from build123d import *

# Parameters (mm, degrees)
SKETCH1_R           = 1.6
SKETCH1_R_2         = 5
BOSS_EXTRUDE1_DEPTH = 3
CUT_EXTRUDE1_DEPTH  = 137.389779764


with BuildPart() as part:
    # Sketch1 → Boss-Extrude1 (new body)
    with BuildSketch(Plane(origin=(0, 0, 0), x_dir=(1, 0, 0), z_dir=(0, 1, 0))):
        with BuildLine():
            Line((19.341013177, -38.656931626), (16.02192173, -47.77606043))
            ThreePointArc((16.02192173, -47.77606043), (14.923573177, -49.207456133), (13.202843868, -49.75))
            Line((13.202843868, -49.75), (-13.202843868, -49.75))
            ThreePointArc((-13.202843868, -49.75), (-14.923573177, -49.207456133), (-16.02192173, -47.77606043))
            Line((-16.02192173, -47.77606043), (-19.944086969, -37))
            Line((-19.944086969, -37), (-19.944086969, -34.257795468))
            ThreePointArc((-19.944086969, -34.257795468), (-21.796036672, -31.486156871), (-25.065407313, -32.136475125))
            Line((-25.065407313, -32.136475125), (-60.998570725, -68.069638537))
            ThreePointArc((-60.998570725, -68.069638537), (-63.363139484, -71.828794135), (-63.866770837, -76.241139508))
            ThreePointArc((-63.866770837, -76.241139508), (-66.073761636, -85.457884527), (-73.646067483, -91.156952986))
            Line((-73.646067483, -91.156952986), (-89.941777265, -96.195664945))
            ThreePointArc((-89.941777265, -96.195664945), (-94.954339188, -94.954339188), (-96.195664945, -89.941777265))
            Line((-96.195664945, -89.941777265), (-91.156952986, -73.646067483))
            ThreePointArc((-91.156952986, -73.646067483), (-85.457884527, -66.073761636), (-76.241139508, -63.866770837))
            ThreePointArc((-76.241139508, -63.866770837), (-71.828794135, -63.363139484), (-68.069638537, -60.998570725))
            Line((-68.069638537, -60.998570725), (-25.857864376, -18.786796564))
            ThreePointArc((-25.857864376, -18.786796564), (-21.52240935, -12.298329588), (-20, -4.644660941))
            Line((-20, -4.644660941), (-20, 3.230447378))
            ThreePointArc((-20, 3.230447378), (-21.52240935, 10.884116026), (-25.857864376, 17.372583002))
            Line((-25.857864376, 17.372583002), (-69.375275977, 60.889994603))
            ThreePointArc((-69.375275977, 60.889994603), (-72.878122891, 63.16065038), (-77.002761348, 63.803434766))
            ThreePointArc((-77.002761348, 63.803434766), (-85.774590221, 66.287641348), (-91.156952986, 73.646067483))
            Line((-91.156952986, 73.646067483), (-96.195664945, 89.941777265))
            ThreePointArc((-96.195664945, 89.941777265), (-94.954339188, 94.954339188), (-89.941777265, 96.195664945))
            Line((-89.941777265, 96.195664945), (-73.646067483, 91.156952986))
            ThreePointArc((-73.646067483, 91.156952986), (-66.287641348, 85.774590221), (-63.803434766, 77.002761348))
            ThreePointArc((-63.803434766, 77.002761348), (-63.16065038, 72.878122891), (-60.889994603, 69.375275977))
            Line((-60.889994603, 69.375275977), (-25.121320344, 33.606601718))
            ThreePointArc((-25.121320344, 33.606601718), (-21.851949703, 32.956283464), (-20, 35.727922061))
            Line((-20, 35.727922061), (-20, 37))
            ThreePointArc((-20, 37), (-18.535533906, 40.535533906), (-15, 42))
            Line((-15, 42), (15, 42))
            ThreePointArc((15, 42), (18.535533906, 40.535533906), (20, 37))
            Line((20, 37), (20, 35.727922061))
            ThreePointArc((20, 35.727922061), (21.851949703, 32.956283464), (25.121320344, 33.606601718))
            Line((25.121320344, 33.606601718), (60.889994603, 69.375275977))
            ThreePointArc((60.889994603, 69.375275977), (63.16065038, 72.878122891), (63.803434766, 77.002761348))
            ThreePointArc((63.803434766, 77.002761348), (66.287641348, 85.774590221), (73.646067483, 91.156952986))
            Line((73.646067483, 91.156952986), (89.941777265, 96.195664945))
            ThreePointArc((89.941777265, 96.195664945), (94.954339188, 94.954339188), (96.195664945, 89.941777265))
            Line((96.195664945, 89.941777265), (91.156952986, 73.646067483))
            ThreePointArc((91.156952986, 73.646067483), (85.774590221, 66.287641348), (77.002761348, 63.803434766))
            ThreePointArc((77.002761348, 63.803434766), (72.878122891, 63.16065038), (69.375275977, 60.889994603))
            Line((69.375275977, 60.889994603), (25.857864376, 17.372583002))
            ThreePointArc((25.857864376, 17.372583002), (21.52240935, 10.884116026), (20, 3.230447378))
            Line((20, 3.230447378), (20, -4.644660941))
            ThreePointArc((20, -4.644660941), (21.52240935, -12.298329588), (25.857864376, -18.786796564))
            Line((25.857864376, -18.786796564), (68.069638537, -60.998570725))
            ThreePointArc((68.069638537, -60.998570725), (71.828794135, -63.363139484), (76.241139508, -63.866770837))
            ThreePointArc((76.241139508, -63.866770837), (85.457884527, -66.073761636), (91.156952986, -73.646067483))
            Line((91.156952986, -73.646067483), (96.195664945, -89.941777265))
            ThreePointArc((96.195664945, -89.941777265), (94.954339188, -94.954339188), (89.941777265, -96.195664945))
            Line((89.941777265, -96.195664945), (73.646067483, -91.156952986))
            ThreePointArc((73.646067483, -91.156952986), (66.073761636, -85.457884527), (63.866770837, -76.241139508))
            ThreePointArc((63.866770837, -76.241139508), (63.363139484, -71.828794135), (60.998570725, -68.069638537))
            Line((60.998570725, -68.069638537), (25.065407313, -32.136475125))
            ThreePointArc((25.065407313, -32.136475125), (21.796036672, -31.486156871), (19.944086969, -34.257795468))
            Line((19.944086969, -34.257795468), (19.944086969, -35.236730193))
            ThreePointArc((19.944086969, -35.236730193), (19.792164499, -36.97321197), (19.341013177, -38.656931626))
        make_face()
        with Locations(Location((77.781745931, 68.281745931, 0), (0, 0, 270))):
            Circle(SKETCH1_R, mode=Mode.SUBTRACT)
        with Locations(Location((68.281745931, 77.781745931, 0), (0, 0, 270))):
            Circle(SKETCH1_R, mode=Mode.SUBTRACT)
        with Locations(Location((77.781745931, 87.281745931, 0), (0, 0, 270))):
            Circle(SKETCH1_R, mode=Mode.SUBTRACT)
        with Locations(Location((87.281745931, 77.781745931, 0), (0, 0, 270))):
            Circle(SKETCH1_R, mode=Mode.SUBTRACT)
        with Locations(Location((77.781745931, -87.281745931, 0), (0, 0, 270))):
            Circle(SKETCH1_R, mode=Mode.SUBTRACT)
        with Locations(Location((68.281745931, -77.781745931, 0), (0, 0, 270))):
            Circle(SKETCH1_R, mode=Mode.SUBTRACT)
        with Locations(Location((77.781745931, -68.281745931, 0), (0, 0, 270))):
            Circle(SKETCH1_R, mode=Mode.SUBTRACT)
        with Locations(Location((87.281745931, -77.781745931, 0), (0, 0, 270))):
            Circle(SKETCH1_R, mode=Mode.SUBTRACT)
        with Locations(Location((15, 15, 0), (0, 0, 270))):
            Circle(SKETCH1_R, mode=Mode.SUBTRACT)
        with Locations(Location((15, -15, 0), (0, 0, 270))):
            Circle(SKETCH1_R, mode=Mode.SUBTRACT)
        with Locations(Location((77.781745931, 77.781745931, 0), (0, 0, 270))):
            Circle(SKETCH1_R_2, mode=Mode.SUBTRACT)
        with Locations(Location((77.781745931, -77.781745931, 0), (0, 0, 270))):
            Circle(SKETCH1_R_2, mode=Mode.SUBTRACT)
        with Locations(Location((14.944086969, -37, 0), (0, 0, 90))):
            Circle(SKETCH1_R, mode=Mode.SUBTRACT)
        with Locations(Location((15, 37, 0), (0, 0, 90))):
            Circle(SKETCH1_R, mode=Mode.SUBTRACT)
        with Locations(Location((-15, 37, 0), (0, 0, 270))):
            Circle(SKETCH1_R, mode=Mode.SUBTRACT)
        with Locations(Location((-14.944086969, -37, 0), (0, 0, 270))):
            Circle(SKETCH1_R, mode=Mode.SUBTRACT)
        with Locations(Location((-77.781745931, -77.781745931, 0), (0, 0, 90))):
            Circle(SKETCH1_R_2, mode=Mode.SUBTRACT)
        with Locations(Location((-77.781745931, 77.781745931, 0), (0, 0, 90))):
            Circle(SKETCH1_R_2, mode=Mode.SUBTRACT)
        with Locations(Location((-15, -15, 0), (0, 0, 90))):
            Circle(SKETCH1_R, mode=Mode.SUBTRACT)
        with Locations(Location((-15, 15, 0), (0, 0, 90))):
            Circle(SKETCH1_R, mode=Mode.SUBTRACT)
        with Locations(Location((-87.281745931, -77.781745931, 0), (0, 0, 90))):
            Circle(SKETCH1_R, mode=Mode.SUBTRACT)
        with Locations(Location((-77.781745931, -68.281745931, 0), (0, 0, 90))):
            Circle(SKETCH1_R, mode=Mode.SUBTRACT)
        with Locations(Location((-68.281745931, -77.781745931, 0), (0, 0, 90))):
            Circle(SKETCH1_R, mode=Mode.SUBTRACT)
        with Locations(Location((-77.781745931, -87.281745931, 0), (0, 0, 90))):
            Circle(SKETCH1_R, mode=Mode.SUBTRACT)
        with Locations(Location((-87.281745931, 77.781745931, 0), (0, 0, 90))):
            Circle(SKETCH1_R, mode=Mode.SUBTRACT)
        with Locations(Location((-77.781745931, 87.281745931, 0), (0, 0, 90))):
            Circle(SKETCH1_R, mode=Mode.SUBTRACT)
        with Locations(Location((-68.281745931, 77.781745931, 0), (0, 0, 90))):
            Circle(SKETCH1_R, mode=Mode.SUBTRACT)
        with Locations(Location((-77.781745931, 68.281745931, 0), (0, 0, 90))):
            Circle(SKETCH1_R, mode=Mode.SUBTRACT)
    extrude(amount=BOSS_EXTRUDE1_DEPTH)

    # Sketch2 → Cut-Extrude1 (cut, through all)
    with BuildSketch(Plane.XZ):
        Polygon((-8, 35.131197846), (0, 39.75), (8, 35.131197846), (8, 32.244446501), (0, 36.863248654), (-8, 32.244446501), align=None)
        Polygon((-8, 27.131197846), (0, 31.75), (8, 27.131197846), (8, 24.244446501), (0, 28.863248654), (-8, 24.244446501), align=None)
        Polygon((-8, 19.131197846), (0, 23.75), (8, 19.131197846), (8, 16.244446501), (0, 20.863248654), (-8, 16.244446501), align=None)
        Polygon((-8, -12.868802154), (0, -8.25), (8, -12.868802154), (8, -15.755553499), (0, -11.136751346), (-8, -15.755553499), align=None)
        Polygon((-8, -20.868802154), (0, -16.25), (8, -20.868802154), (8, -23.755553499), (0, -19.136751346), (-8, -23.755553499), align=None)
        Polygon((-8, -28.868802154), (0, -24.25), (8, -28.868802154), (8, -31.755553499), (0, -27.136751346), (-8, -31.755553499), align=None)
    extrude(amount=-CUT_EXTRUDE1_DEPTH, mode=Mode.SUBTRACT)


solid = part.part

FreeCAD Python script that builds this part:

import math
import FreeCAD as App
import Part
import Sketcher
from FreeCAD import Vector
Q = App.Units.Quantity


def add_polygon(sketch, points):
    """Adds a closed chain of lines whose ends are joined by coincident constraints."""
    first, n = sketch.GeometryCount, len(points)
    for a, b in zip(points, points[1:] + points[:1]):
        sketch.addGeometry(Part.LineSegment(App.Vector(*a, 0), App.Vector(*b, 0)), False)
    for i in range(n):
        sketch.addConstraint(Sketcher.Constraint("Coincident", first + i, 2, first + (i + 1) % n, 1))

doc = App.newDocument("Part")
body = doc.addObject("PartDesign::Body", "Body")

sketch1 = body.newObject("Sketcher::SketchObject", "Sketch")
sketch1.AttachmentSupport = (doc.getObject("XZ_Plane"), [""])
sketch1.MapMode = "FlatFace"
sketch1.addGeometry(Part.LineSegment(Vector(16.021922, 47.77606, 0), Vector(19.341013, 38.656932, 0)), False)
sketch1.addGeometry(Part.ArcOfCircle(Part.Circle(Vector(9.944087, 35.23673, 0), Vector(0, 0, 1), 10), math.radians(0), math.radians(20)), False)
sketch1.addGeometry(Part.LineSegment(Vector(19.944087, 35.23673, 0), Vector(19.944087, 34.257795, 0)), False)
sketch1.addGeometry(Part.ArcOfCircle(Part.Circle(Vector(22.944087, 34.257795, 0), Vector(0, 0, 1), 3), math.radians(-180), math.radians(-45)), False)
sketch1.addGeometry(Part.LineSegment(Vector(25.065407, 32.136475, 0), Vector(60.998571, 68.069639, 0)), False)
sketch1.addGeometry(Part.ArcOfCircle(Part.Circle(Vector(53.927503, 75.140706, 0), Vector(0, 0, 1), 10), math.radians(-45), math.radians(6.317813)), False)
sketch1.addGeometry(Part.ArcOfCircle(Part.Circle(Vector(77.781746, 77.781746, 0), Vector(0, 0, 1), 14), math.radians(107.181861), math.radians(186.317813)), False)
sketch1.addGeometry(Part.LineSegment(Vector(73.646067, 91.156953, 0), Vector(89.941777, 96.195665, 0)), False)
sketch1.addGeometry(Part.ArcOfCircle(Part.Circle(Vector(91.418805, 91.418805, 0), Vector(0, 0, 1), 5), math.radians(-17.181861), math.radians(107.181861)), False)
sketch1.addGeometry(Part.LineSegment(Vector(96.195665, 89.941777, 0), Vector(91.156953, 73.646067, 0)), False)
sketch1.addGeometry(Part.ArcOfCircle(Part.Circle(Vector(77.781746, 77.781746, 0), Vector(0, 0, 1), 14), math.radians(-96.317813), math.radians(-17.181861)), False)
sketch1.addGeometry(Part.ArcOfCircle(Part.Circle(Vector(75.140706, 53.927503, 0), Vector(0, 0, 1), 10), math.radians(83.682187), math.radians(135)), False)
sketch1.addGeometry(Part.LineSegment(Vector(68.069639, 60.998571, 0), Vector(25.857864, 18.786797, 0)), False)
sketch1.addGeometry(Part.ArcOfCircle(Part.Circle(Vector(40, 4.644661, 0), Vector(0, 0, 1), 20), math.radians(135), math.radians(180)), False)
sketch1.addGeometry(Part.LineSegment(Vector(20, 4.644661, 0), Vector(20, -3.230447, 0)), False)
sketch1.addGeometry(Part.ArcOfCircle(Part.Circle(Vector(40, -3.230447, 0), Vector(0, 0, 1), 20), math.radians(180), math.radians(225)), False)
sketch1.addGeometry(Part.LineSegment(Vector(25.857864, -17.372583, 0), Vector(69.375276, -60.889995, 0)), False)
sketch1.addGeometry(Part.ArcOfCircle(Part.Circle(Vector(76.446344, -53.818927, 0), Vector(0, 0, 1), 10), math.radians(-135), math.radians(-86.810315)), False)
sketch1.addGeometry(Part.ArcOfCircle(Part.Circle(Vector(77.781746, -77.781746, 0), Vector(0, 0, 1), 14), math.radians(17.181861), math.radians(93.189685)), False)
sketch1.addGeometry(Part.LineSegment(Vector(91.156953, -73.646067, 0), Vector(96.195665, -89.941777, 0)), False)
sketch1.addGeometry(Part.ArcOfCircle(Part.Circle(Vector(91.418805, -91.418805, 0), Vector(0, 0, 1), 5), math.radians(-107.181861), math.radians(17.181861)), False)
sketch1.addGeometry(Part.LineSegment(Vector(89.941777, -96.195665, 0), Vector(73.646067, -91.156953, 0)), False)
sketch1.addGeometry(Part.ArcOfCircle(Part.Circle(Vector(77.781746, -77.781746, 0), Vector(0, 0, 1), 14), math.radians(176.810315), math.radians(252.818139)), False)
sketch1.addGeometry(Part.ArcOfCircle(Part.Circle(Vector(53.818927, -76.446344, 0), Vector(0, 0, 1), 10), math.radians(-3.189685), math.radians(45)), False)
sketch1.addGeometry(Part.LineSegment(Vector(60.889995, -69.375276, 0), Vector(25.12132, -33.606602, 0)), False)
sketch1.addGeometry(Part.ArcOfCircle(Part.Circle(Vector(23, -35.727922, 0), Vector(0, 0, 1), 3), math.radians(45), math.radians(180)), False)
sketch1.addGeometry(Part.LineSegment(Vector(20, -35.727922, 0), Vector(20, -37, 0)), False)
sketch1.addGeometry(Part.ArcOfCircle(Part.Circle(Vector(15, -37, 0), Vector(0, 0, 1), 5), math.radians(-90), math.radians(0)), False)
sketch1.addGeometry(Part.LineSegment(Vector(15, -42, 0), Vector(-15, -42, 0)), False)
sketch1.addGeometry(Part.ArcOfCircle(Part.Circle(Vector(-15, -37, 0), Vector(0, 0, 1), 5), math.radians(180), math.radians(270)), False)
sketch1.addGeometry(Part.LineSegment(Vector(-20, -37, 0), Vector(-20, -35.727922, 0)), False)
sketch1.addGeometry(Part.ArcOfCircle(Part.Circle(Vector(-23, -35.727922, 0), Vector(0, 0, 1), 3), math.radians(0), math.radians(135)), False)
sketch1.addGeometry(Part.LineSegment(Vector(-25.12132, -33.606602, 0), Vector(-60.889995, -69.375276, 0)), False)
sketch1.addGeometry(Part.ArcOfCircle(Part.Circle(Vector(-53.818927, -76.446344, 0), Vector(0, 0, 1), 10), math.radians(135), math.radians(183.189685)), False)
sketch1.addGeometry(Part.ArcOfCircle(Part.Circle(Vector(-77.781746, -77.781746, 0), Vector(0, 0, 1), 14), math.radians(-72.818139), math.radians(3.189685)), False)
sketch1.addGeometry(Part.LineSegment(Vector(-73.646067, -91.156953, 0), Vector(-89.941777, -96.195665, 0)), False)
sketch1.addGeometry(Part.ArcOfCircle(Part.Circle(Vector(-91.418805, -91.418805, 0), Vector(0, 0, 1), 5), math.radians(162.818139), math.radians(287.181861)), False)
sketch1.addGeometry(Part.LineSegment(Vector(-96.195665, -89.941777, 0), Vector(-91.156953, -73.646067, 0)), False)
sketch1.addGeometry(Part.ArcOfCircle(Part.Circle(Vector(-77.781746, -77.781746, 0), Vector(0, 0, 1), 14), math.radians(86.810315), math.radians(162.818139)), False)
sketch1.addGeometry(Part.ArcOfCircle(Part.Circle(Vector(-76.446344, -53.818927, 0), Vector(0, 0, 1), 10), math.radians(-93.189685), math.radians(-45)), False)
sketch1.addGeometry(Part.LineSegment(Vector(-69.375276, -60.889995, 0), Vector(-25.857864, -17.372583, 0)), False)
sketch1.addGeometry(Part.ArcOfCircle(Part.Circle(Vector(-40, -3.230447, 0), Vector(0, 0, 1), 20), math.radians(-45), math.radians(0)), False)
sketch1.addGeometry(Part.LineSegment(Vector(-20, -3.230447, 0), Vector(-20, 4.644661, 0)), False)
sketch1.addGeometry(Part.ArcOfCircle(Part.Circle(Vector(-40, 4.644661, 0), Vector(0, 0, 1), 20), math.radians(0), math.radians(45)), False)
sketch1.addGeometry(Part.LineSegment(Vector(-25.857864, 18.786797, 0), Vector(-68.069639, 60.998571, 0)), False)
sketch1.addGeometry(Part.ArcOfCircle(Part.Circle(Vector(-75.140706, 53.927503, 0), Vector(0, 0, 1), 10), math.radians(45), math.radians(96.317813)), False)
sketch1.addGeometry(Part.ArcOfCircle(Part.Circle(Vector(-77.781746, 77.781746, 0), Vector(0, 0, 1), 14), math.radians(-162.818139), math.radians(-83.682187)), False)
sketch1.addGeometry(Part.LineSegment(Vector(-91.156953, 73.646067, 0), Vector(-96.195665, 89.941777, 0)), False)
sketch1.addGeometry(Part.ArcOfCircle(Part.Circle(Vector(-91.418805, 91.418805, 0), Vector(0, 0, 1), 5), math.radians(72.818139), math.radians(197.181861)), False)
sketch1.addGeometry(Part.LineSegment(Vector(-89.941777, 96.195665, 0), Vector(-73.646067, 91.156953, 0)), False)
sketch1.addGeometry(Part.ArcOfCircle(Part.Circle(Vector(-77.781746, 77.781746, 0), Vector(0, 0, 1), 14), math.radians(-6.317813), math.radians(72.818139)), False)
sketch1.addGeometry(Part.ArcOfCircle(Part.Circle(Vector(-53.927503, 75.140706, 0), Vector(0, 0, 1), 10), math.radians(173.682187), math.radians(225)), False)
sketch1.addGeometry(Part.LineSegment(Vector(-60.998571, 68.069639, 0), Vector(-25.065407, 32.136475, 0)), False)
sketch1.addGeometry(Part.ArcOfCircle(Part.Circle(Vector(-22.944087, 34.257795, 0), Vector(0, 0, 1), 3), math.radians(-135), math.radians(0)), False)
sketch1.addGeometry(Part.LineSegment(Vector(-19.944087, 34.257795, 0), Vector(-19.944087, 37, 0)), False)
sketch1.addGeometry(Part.LineSegment(Vector(-19.944087, 37, 0), Vector(-16.021922, 47.77606, 0)), False)
sketch1.addGeometry(Part.ArcOfCircle(Part.Circle(Vector(-13.202844, 46.75, 0), Vector(0, 0, 1), 3), math.radians(90), math.radians(160)), False)
sketch1.addGeometry(Part.LineSegment(Vector(-13.202844, 49.75, 0), Vector(13.202844, 49.75, 0)), False)
sketch1.addGeometry(Part.ArcOfCircle(Part.Circle(Vector(13.202844, 46.75, 0), Vector(0, 0, 1), 3), math.radians(20), math.radians(90)), False)
sketch1.addGeometry(Part.Circle(Vector(77.781746, 87.281746, 0), Vector(0, 0, 1), 1.6), False)
sketch1.addGeometry(Part.Circle(Vector(87.281746, 77.781746, 0), Vector(0, 0, 1), 1.6), False)
sketch1.addGeometry(Part.Circle(Vector(77.781746, 77.781746, 0), Vector(0, 0, 1), 5), False)
sketch1.addGeometry(Part.Circle(Vector(68.281746, 77.781746, 0), Vector(0, 0, 1), 1.6), False)
sketch1.addGeometry(Part.Circle(Vector(77.781746, 68.281746, 0), Vector(0, 0, 1), 1.6), False)
sketch1.addGeometry(Part.Circle(Vector(14.944087, 37, 0), Vector(0, 0, 1), 1.6), False)
sketch1.addGeometry(Part.Circle(Vector(15, 15, 0), Vector(0, 0, 1), 1.6), False)
sketch1.addGeometry(Part.Circle(Vector(-68.281746, 77.781746, 0), Vector(0, 0, 1), 1.6), False)
sketch1.addGeometry(Part.Circle(Vector(-77.781746, 87.281746, 0), Vector(0, 0, 1), 1.6), False)
sketch1.addGeometry(Part.Circle(Vector(-77.781746, 77.781746, 0), Vector(0, 0, 1), 5), False)
sketch1.addGeometry(Part.Circle(Vector(-87.281746, 77.781746, 0), Vector(0, 0, 1), 1.6), False)
sketch1.addGeometry(Part.Circle(Vector(-77.781746, 68.281746, 0), Vector(0, 0, 1), 1.6), False)
sketch1.addGeometry(Part.Circle(Vector(-14.944087, 37, 0), Vector(0, 0, 1), 1.6), False)
sketch1.addGeometry(Part.Circle(Vector(-15, 15, 0), Vector(0, 0, 1), 1.6), False)
sketch1.addGeometry(Part.Circle(Vector(15, -15, 0), Vector(0, 0, 1), 1.6), False)
sketch1.addGeometry(Part.Circle(Vector(15, -37, 0), Vector(0, 0, 1), 1.6), False)
sketch1.addGeometry(Part.Circle(Vector(77.781746, -68.281746, 0), Vector(0, 0, 1), 1.6), False)
sketch1.addGeometry(Part.Circle(Vector(87.281746, -77.781746, 0), Vector(0, 0, 1), 1.6), False)
sketch1.addGeometry(Part.Circle(Vector(77.781746, -77.781746, 0), Vector(0, 0, 1), 5), False)
sketch1.addGeometry(Part.Circle(Vector(77.781746, -87.281746, 0), Vector(0, 0, 1), 1.6), False)
sketch1.addGeometry(Part.Circle(Vector(68.281746, -77.781746, 0), Vector(0, 0, 1), 1.6), False)
sketch1.addGeometry(Part.Circle(Vector(-15, -15, 0), Vector(0, 0, 1), 1.6), False)
sketch1.addGeometry(Part.Circle(Vector(-15, -37, 0), Vector(0, 0, 1), 1.6), False)
sketch1.addGeometry(Part.Circle(Vector(-77.781746, -68.281746, 0), Vector(0, 0, 1), 1.6), False)
sketch1.addGeometry(Part.Circle(Vector(-68.281746, -77.781746, 0), Vector(0, 0, 1), 1.6), False)
sketch1.addGeometry(Part.Circle(Vector(-77.781746, -77.781746, 0), Vector(0, 0, 1), 5), False)
sketch1.addGeometry(Part.Circle(Vector(-87.281746, -77.781746, 0), Vector(0, 0, 1), 1.6), False)
sketch1.addGeometry(Part.Circle(Vector(-77.781746, -87.281746, 0), Vector(0, 0, 1), 1.6), False)
sketch1.addConstraint(Sketcher.Constraint("Tangent", 0, 2, 1, 2))
sketch1.addConstraint(Sketcher.Constraint("Tangent", 1, 1, 2, 1))
sketch1.addConstraint(Sketcher.Constraint("Tangent", 2, 2, 3, 1))
sketch1.addConstraint(Sketcher.Constraint("Tangent", 3, 2, 4, 1))
sketch1.addConstraint(Sketcher.Constraint("Tangent", 4, 2, 5, 1))
sketch1.addConstraint(Sketcher.Constraint("Tangent", 5, 2, 6, 2))
sketch1.addConstraint(Sketcher.Constraint("Tangent", 6, 1, 7, 1))
sketch1.addConstraint(Sketcher.Constraint("Tangent", 7, 2, 8, 2))
sketch1.addConstraint(Sketcher.Constraint("Tangent", 8, 1, 9, 1))
sketch1.addConstraint(Sketcher.Constraint("Tangent", 9, 2, 10, 2))
sketch1.addConstraint(Sketcher.Constraint("Tangent", 10, 1, 11, 1))
sketch1.addConstraint(Sketcher.Constraint("Tangent", 11, 2, 12, 1))
sketch1.addConstraint(Sketcher.Constraint("Tangent", 12, 2, 13, 1))
sketch1.addConstraint(Sketcher.Constraint("Tangent", 13, 2, 14, 1))
sketch1.addConstraint(Sketcher.Constraint("Tangent", 14, 2, 15, 1))
sketch1.addConstraint(Sketcher.Constraint("Tangent", 15, 2, 16, 1))
sketch1.addConstraint(Sketcher.Constraint("Tangent", 16, 2, 17, 1))
sketch1.addConstraint(Sketcher.Constraint("Tangent", 17, 2, 18, 2))
sketch1.addConstraint(Sketcher.Constraint("Tangent", 18, 1, 19, 1))
sketch1.addConstraint(Sketcher.Constraint("Tangent", 19, 2, 20, 2))
sketch1.addConstraint(Sketcher.Constraint("Tangent", 20, 1, 21, 1))
sketch1.addConstraint(Sketcher.Constraint("Tangent", 21, 2, 22, 2))
sketch1.addConstraint(Sketcher.Constraint("Tangent", 22, 1, 23, 1))
sketch1.addConstraint(Sketcher.Constraint("Tangent", 23, 2, 24, 1))
sketch1.addConstraint(Sketcher.Constraint("Tangent", 24, 2, 25, 1))
sketch1.addConstraint(Sketcher.Constraint("Tangent", 25, 2, 26, 1))
sketch1.addConstraint(Sketcher.Constraint("Tangent", 26, 2, 27, 2))
sketch1.addConstraint(Sketcher.Constraint("Tangent", 27, 1, 28, 1))
sketch1.addConstraint(Sketcher.Constraint("Tangent", 28, 2, 29, 2))
sketch1.addConstraint(Sketcher.Constraint("Tangent", 29, 1, 30, 1))
sketch1.addConstraint(Sketcher.Constraint("Tangent", 30, 2, 31, 1))
sketch1.addConstraint(Sketcher.Constraint("Tangent", 31, 2, 32, 1))
sketch1.addConstraint(Sketcher.Constraint("Tangent", 32, 2, 33, 1))
sketch1.addConstraint(Sketcher.Constraint("Tangent", 33, 2, 34, 2))
sketch1.addConstraint(Sketcher.Constraint("Tangent", 34, 1, 35, 1))
sketch1.addConstraint(Sketcher.Constraint("Tangent", 35, 2, 36, 2))
sketch1.addConstraint(Sketcher.Constraint("Tangent", 36, 1, 37, 1))
sketch1.addConstraint(Sketcher.Constraint("Tangent", 37, 2, 38, 2))
sketch1.addConstraint(Sketcher.Constraint("Tangent", 38, 1, 39, 1))
sketch1.addConstraint(Sketcher.Constraint("Tangent", 39, 2, 40, 1))
sketch1.addConstraint(Sketcher.Constraint("Tangent", 40, 2, 41, 1))
sketch1.addConstraint(Sketcher.Constraint("Tangent", 41, 2, 42, 1))
sketch1.addConstraint(Sketcher.Constraint("Tangent", 42, 2, 43, 1))
sketch1.addConstraint(Sketcher.Constraint("Tangent", 43, 2, 44, 1))
sketch1.addConstraint(Sketcher.Constraint("Tangent", 44, 2, 45, 1))
sketch1.addConstraint(Sketcher.Constraint("Tangent", 45, 2, 46, 2))
sketch1.addConstraint(Sketcher.Constraint("Tangent", 46, 1, 47, 1))
sketch1.addConstraint(Sketcher.Constraint("Tangent", 47, 2, 48, 2))
sketch1.addConstraint(Sketcher.Constraint("Tangent", 48, 1, 49, 1))
sketch1.addConstraint(Sketcher.Constraint("Tangent", 49, 2, 50, 2))
sketch1.addConstraint(Sketcher.Constraint("Tangent", 50, 1, 51, 1))
sketch1.addConstraint(Sketcher.Constraint("Tangent", 51, 2, 52, 1))
sketch1.addConstraint(Sketcher.Constraint("Tangent", 52, 2, 53, 1))
sketch1.addConstraint(Sketcher.Constraint("Tangent", 53, 2, 54, 1))
sketch1.addConstraint(Sketcher.Constraint("Coincident", 54, 2, 55, 1))
sketch1.addConstraint(Sketcher.Constraint("Tangent", 55, 2, 56, 2))
sketch1.addConstraint(Sketcher.Constraint("Tangent", 56, 1, 57, 1))
sketch1.addConstraint(Sketcher.Constraint("Tangent", 57, 2, 58, 2))
sketch1.addConstraint(Sketcher.Constraint("Tangent", 58, 1, 0, 1))
sketch1.addConstraint(Sketcher.Constraint("Vertical", 2))
sketch1.addConstraint(Sketcher.Constraint("Vertical", 14))
sketch1.addConstraint(Sketcher.Constraint("Vertical", 26))
sketch1.addConstraint(Sketcher.Constraint("Horizontal", 28))
sketch1.addConstraint(Sketcher.Constraint("Vertical", 30))
sketch1.addConstraint(Sketcher.Constraint("Vertical", 42))
sketch1.addConstraint(Sketcher.Constraint("Vertical", 54))
sketch1.addConstraint(Sketcher.Constraint("Horizontal", 57))
sketch1.addConstraint(Sketcher.Constraint("Coincident", 10, 3, 6, 3))
sketch1.addConstraint(Sketcher.Constraint("Coincident", 22, 3, 18, 3))
sketch1.addConstraint(Sketcher.Constraint("Coincident", 38, 3, 34, 3))
sketch1.addConstraint(Sketcher.Constraint("Coincident", 50, 3, 46, 3))
sketch1.addConstraint(Sketcher.Constraint("Coincident", 61, 3, 6, 3))
sketch1.addConstraint(Sketcher.Constraint("Coincident", 68, 3, 46, 3))
sketch1.addConstraint(Sketcher.Constraint("Coincident", 74, 3, 27, 3))
sketch1.addConstraint(Sketcher.Constraint("Coincident", 77, 3, 18, 3))
sketch1.addConstraint(Sketcher.Constraint("Coincident", 81, 3, 29, 3))
sketch1.addConstraint(Sketcher.Constraint("Coincident", 84, 3, 34, 3))
sketch1.addConstraint(Sketcher.Constraint("Equal", 1, 5))
sketch1.addConstraint(Sketcher.Constraint("Equal", 6, 10))
sketch1.addConstraint(Sketcher.Constraint("Equal", 5, 11))
sketch1.addConstraint(Sketcher.Constraint("Equal", 13, 15))
sketch1.addConstraint(Sketcher.Constraint("Equal", 11, 17))
sketch1.addConstraint(Sketcher.Constraint("Equal", 10, 18))
sketch1.addConstraint(Sketcher.Constraint("Equal", 8, 20))
sketch1.addConstraint(Sketcher.Constraint("Equal", 18, 22))
sketch1.addConstraint(Sketcher.Constraint("Equal", 17, 23))
sketch1.addConstraint(Sketcher.Constraint("Equal", 3, 25))
sketch1.addConstraint(Sketcher.Constraint("Equal", 20, 27))
sketch1.addConstraint(Sketcher.Constraint("Equal", 27, 29))
sketch1.addConstraint(Sketcher.Constraint("Equal", 25, 31))
sketch1.addConstraint(Sketcher.Constraint("Equal", 23, 33))
sketch1.addConstraint(Sketcher.Constraint("Equal", 22, 34))
sketch1.addConstraint(Sketcher.Constraint("Equal", 29, 36))
sketch1.addConstraint(Sketcher.Constraint("Equal", 34, 38))
sketch1.addConstraint(Sketcher.Constraint("Equal", 33, 39))
sketch1.addConstraint(Sketcher.Constraint("Equal", 15, 41))
sketch1.addConstraint(Sketcher.Constraint("Equal", 41, 43))
sketch1.addConstraint(Sketcher.Constraint("Equal", 39, 45))
sketch1.addConstraint(Sketcher.Constraint("Equal", 38, 46))
sketch1.addConstraint(Sketcher.Constraint("Equal", 36, 48))
sketch1.addConstraint(Sketcher.Constraint("Equal", 46, 50))
sketch1.addConstraint(Sketcher.Constraint("Equal", 45, 51))
sketch1.addConstraint(Sketcher.Constraint("Equal", 31, 53))
sketch1.addConstraint(Sketcher.Constraint("Equal", 53, 56))
sketch1.addConstraint(Sketcher.Constraint("Equal", 56, 58))
sketch1.addConstraint(Sketcher.Constraint("Equal", 59, 60))
sketch1.addConstraint(Sketcher.Constraint("Equal", 48, 61))
sketch1.addConstraint(Sketcher.Constraint("Equal", 60, 62))
sketch1.addConstraint(Sketcher.Constraint("Equal", 62, 63))
sketch1.addConstraint(Sketcher.Constraint("Equal", 63, 64))
sketch1.addConstraint(Sketcher.Constraint("Equal", 64, 65))
sketch1.addConstraint(Sketcher.Constraint("Equal", 65, 66))
sketch1.addConstraint(Sketcher.Constraint("Equal", 66, 67))
sketch1.addConstraint(Sketcher.Constraint("Equal", 61, 68))
sketch1.addConstraint(Sketcher.Constraint("Equal", 67, 69))
sketch1.addConstraint(Sketcher.Constraint("Equal", 69, 70))
sketch1.addConstraint(Sketcher.Constraint("Equal", 70, 71))
sketch1.addConstraint(Sketcher.Constraint("Equal", 71, 72))
sketch1.addConstraint(Sketcher.Constraint("Equal", 72, 73))
sketch1.addConstraint(Sketcher.Constraint("Equal", 73, 74))
sketch1.addConstraint(Sketcher.Constraint("Equal", 74, 75))
sketch1.addConstraint(Sketcher.Constraint("Equal", 75, 76))
sketch1.addConstraint(Sketcher.Constraint("Equal", 68, 77))
sketch1.addConstraint(Sketcher.Constraint("Equal", 76, 78))
sketch1.addConstraint(Sketcher.Constraint("Equal", 78, 79))
sketch1.addConstraint(Sketcher.Constraint("Equal", 79, 80))
sketch1.addConstraint(Sketcher.Constraint("Equal", 80, 81))
sketch1.addConstraint(Sketcher.Constraint("Equal", 81, 82))
sketch1.addConstraint(Sketcher.Constraint("Equal", 82, 83))
sketch1.addConstraint(Sketcher.Constraint("Equal", 77, 84))
sketch1.addConstraint(Sketcher.Constraint("Equal", 83, 85))
sketch1.addConstraint(Sketcher.Constraint("Equal", 85, 86))
sketch1.addConstraint(Sketcher.Constraint("Symmetric", 6, 3, 34, 3, -1, 1))
sketch1.addConstraint(Sketcher.Constraint("Symmetric", 8, 3, 36, 3, -1, 1))
sketch1.addConstraint(Sketcher.Constraint("Symmetric", 18, 3, 46, 3, -1, 1))
sketch1.addConstraint(Sketcher.Constraint("Symmetric", 20, 3, 48, 3, -1, 1))
sketch1.addConstraint(Sketcher.Constraint("Symmetric", 72, 3, 73, 3, -1, 1))
sketch1.addConstraint(Sketcher.Constraint("Symmetric", 70, 3, 75, 3, -1, 1))
sketch1.addConstraint(Sketcher.Constraint("Symmetric", 69, 3, 76, 3, -1, 1))
sketch1.addConstraint(Sketcher.Constraint("Symmetric", 67, 3, 78, 3, -1, 1))
sketch1.addConstraint(Sketcher.Constraint("Symmetric", 66, 3, 79, 3, -1, 1))
sketch1.addConstraint(Sketcher.Constraint("Symmetric", 65, 3, 80, 3, -1, 1))
sketch1.addConstraint(Sketcher.Constraint("Symmetric", 63, 3, 82, 3, -1, 1))
sketch1.addConstraint(Sketcher.Constraint("Symmetric", 62, 3, 83, 3, -1, 1))
sketch1.addConstraint(Sketcher.Constraint("Symmetric", 60, 3, 85, 3, -1, 1))
sketch1.addConstraint(Sketcher.Constraint("Symmetric", 59, 3, 86, 3, -1, 1))
sketch1.addConstraint(Sketcher.Constraint("Symmetric", 25, 3, 31, 3, -2))
sketch1.addConstraint(Sketcher.Constraint("Symmetric", 23, 3, 33, 3, -2))
sketch1.addConstraint(Sketcher.Constraint("Symmetric", 20, 3, 36, 3, -2))
sketch1.addConstraint(Sketcher.Constraint("Symmetric", 17, 3, 39, 3, -2))
sketch1.addConstraint(Sketcher.Constraint("Symmetric", 15, 3, 41, 3, -2))
sketch1.addConstraint(Sketcher.Constraint("Symmetric", 3, 3, 53, 3, -2))
sketch1.addConstraint(Sketcher.Constraint("Symmetric", 62, 3, 66, 3, -2))
sketch1.addConstraint(Sketcher.Constraint("Symmetric", 59, 3, 67, 3, -2))
sketch1.addConstraint(Sketcher.Constraint("Symmetric", 60, 3, 69, 3, -2))
sketch1.addConstraint(Sketcher.Constraint("Symmetric", 63, 3, 70, 3, -2))
sketch1.addConstraint(Sketcher.Constraint("Symmetric", 64, 3, 71, 3, -2))
sketch1.addConstraint(Sketcher.Constraint("Symmetric", 65, 3, 72, 3, -2))
sketch1.addConstraint(Sketcher.Constraint("Symmetric", 12, 2, 43, 2, -2))
sketch1.addConstraint(Sketcher.Constraint("Symmetric", 55, 2, 58, 1, -2))
sketch1.addConstraint(Sketcher.Constraint("Parallel", 4, 12))
sketch1.addConstraint(Sketcher.Constraint("Perpendicular", 12, 16))
sketch1.addConstraint(Sketcher.Constraint("Perpendicular", 7, 19))
sketch1.addConstraint(Sketcher.Constraint("Parallel", 16, 24))
sketch1.addConstraint(Sketcher.Constraint("Perpendicular", 24, 32))
sketch1.addConstraint(Sketcher.Constraint("Parallel", 44, 52))
sketch1.addConstraint(Sketcher.Constraint("Horizontal", 50, 3, 60, 3))
sketch1.addConstraint(Sketcher.Constraint("Horizontal", 61, 3, 62, 3))
sketch1.addConstraint(Sketcher.Constraint("Horizontal", 71, 3, 54, 2))
sketch1.addConstraint(Sketcher.Constraint("Vertical", 22, 3, 59, 3))
sketch1.addConstraint(Sketcher.Constraint("Vertical", 61, 3, 63, 3))
sketch1.addConstraint(Sketcher.Constraint("Vertical", 27, 3, 65, 3))
sketch1.addConstraint(Sketcher.Constraint("Vertical", 14, 2, 25, 2))
sketch1.addConstraint(Sketcher.Constraint("Diameter", 61, 10.0))
sketch1.addConstraint(Sketcher.Constraint("Radius", 1, 10.0))
sketch1.addConstraint(Sketcher.Constraint("Radius", 3, 3.0))
sketch1.addConstraint(Sketcher.Constraint("Radius", 6, 14.0))
sketch1.addConstraint(Sketcher.Constraint("Radius", 13, 20.0))
sketch1.addConstraint(Sketcher.Constraint("Diameter", 59, 3.2))
sketch1.addConstraint(Sketcher.Constraint("DistanceX", 28, 2, 28, 1, 30.0))
sketch1.addConstraint(Sketcher.Constraint("Angle", 0, Q("-70 deg")))
sketch1.addConstraint(Sketcher.Constraint("DistanceY", 27, 3, -1, 1, 37.0))
sketch1.addConstraint(Sketcher.Constraint("DistanceY", -1, 1, 64, 3, 37.0))
sketch1.addConstraint(Sketcher.Constraint("DistanceY", -1, 1, 65, 3, 15.0))
sketch1.addConstraint(Sketcher.Constraint("DistanceY", -1, 1, 56, 3, 46.75))
sketch1.addConstraint(Sketcher.Constraint("DistanceY", 14, 2, 14, 1, 7.875108))
sketch1.addConstraint(Sketcher.Constraint("DistanceY", 24, 2, -1, 1, 33.606602))
sketch1.addConstraint(Sketcher.Constraint("DistanceX", 57, 1, 57, 2, 26.405688))
sketch1.addConstraint(Sketcher.Constraint("DistanceY", 2, 2, 2, 1, 0.978935))
sketch1.addConstraint(Sketcher.Constraint("DistanceY", -1, 1, 13, 3, 4.644661))
sketch1.addConstraint(Sketcher.Constraint("DistanceX", -1, 1, 4, 2, 60.998571))
sketch1.addConstraint(Sketcher.Constraint("DistanceX", -1, 1, 5, 2, 63.866771))
sketch1.addConstraint(Sketcher.Constraint("Distance", 7, 17.056927))
sketch1.addConstraint(Sketcher.Constraint("DistanceY", -1, 1, 59, 3, 87.281746))
sketch1.addConstraint(Sketcher.Constraint("DistanceX", -1, 1, 60, 3, 87.281746))
sketch1.addConstraint(Sketcher.Constraint("DistanceX", -1, 1, 62, 3, 68.281746))
sketch1.addConstraint(Sketcher.Constraint("DistanceY", -1, 1, 63, 3, 68.281746))
sketch1.addConstraint(Sketcher.Constraint("DistanceX", -1, 1, 64, 3, 14.944087))
pad1 = body.newObject("PartDesign::Pad", "Pad")
pad1.Profile = sketch1
pad1.Length = 3
pad1.Reversed = True

sketch2 = body.newObject("Sketcher::SketchObject", "Sketch001")
sketch2.AttachmentSupport = (doc.getObject("XZ_Plane"), [""])
sketch2.MapMode = "FlatFace"
add_polygon(sketch2, [(0, 39.75), (-8, 35.131198), (-8, 32.244447), (0, 36.863249), (8, 32.244447), (8, 35.131198)])
add_polygon(sketch2, [(0, 31.75), (-8, 27.131198), (-8, 24.244447), (0, 28.863249), (8, 24.244447), (8, 27.131198)])
add_polygon(sketch2, [(0, 23.75), (-8, 19.131198), (-8, 16.244447), (0, 20.863249), (8, 16.244447), (8, 19.131198)])
add_polygon(sketch2, [(0, -8.25), (-8, -12.868802), (-8, -15.755553), (0, -11.136751), (8, -15.755553), (8, -12.868802)])
add_polygon(sketch2, [(0, -16.25), (-8, -20.868802), (-8, -23.755553), (0, -19.136751), (8, -23.755553), (8, -20.868802)])
add_polygon(sketch2, [(0, -24.25), (-8, -28.868802), (-8, -31.755553), (0, -27.136751), (8, -31.755553), (8, -28.868802)])
sketch2.addConstraint(Sketcher.Constraint("Vertical", 1))
sketch2.addConstraint(Sketcher.Constraint("Vertical", 4))
sketch2.addConstraint(Sketcher.Constraint("Vertical", 7))
sketch2.addConstraint(Sketcher.Constraint("Vertical", 10))
sketch2.addConstraint(Sketcher.Constraint("Vertical", 13))
sketch2.addConstraint(Sketcher.Constraint("Vertical", 16))
sketch2.addConstraint(Sketcher.Constraint("Vertical", 19))
sketch2.addConstraint(Sketcher.Constraint("Vertical", 22))
sketch2.addConstraint(Sketcher.Constraint("Vertical", 25))
sketch2.addConstraint(Sketcher.Constraint("Vertical", 28))
sketch2.addConstraint(Sketcher.Constraint("Vertical", 31))
sketch2.addConstraint(Sketcher.Constraint("Vertical", 34))
sketch2.addConstraint(Sketcher.Constraint("Symmetric", 1, 2, 3, 2, -2))
sketch2.addConstraint(Sketcher.Constraint("Symmetric", 7, 2, 9, 2, -2))
sketch2.addConstraint(Sketcher.Constraint("Symmetric", 13, 2, 15, 2, -2))
sketch2.addConstraint(Sketcher.Constraint("Symmetric", 19, 2, 21, 2, -2))
sketch2.addConstraint(Sketcher.Constraint("Symmetric", 25, 2, 27, 2, -2))
sketch2.addConstraint(Sketcher.Constraint("Symmetric", 31, 2, 33, 2, -2))
sketch2.addConstraint(Sketcher.Constraint("PointOnObject", 2, 2, -2))
sketch2.addConstraint(Sketcher.Constraint("PointOnObject", 5, 2, -2))
sketch2.addConstraint(Sketcher.Constraint("PointOnObject", 8, 2, -2))
sketch2.addConstraint(Sketcher.Constraint("PointOnObject", 11, 2, -2))
sketch2.addConstraint(Sketcher.Constraint("PointOnObject", 14, 2, -2))
sketch2.addConstraint(Sketcher.Constraint("PointOnObject", 17, 2, -2))
sketch2.addConstraint(Sketcher.Constraint("PointOnObject", 20, 2, -2))
sketch2.addConstraint(Sketcher.Constraint("PointOnObject", 23, 2, -2))
sketch2.addConstraint(Sketcher.Constraint("PointOnObject", 26, 2, -2))
sketch2.addConstraint(Sketcher.Constraint("PointOnObject", 29, 2, -2))
sketch2.addConstraint(Sketcher.Constraint("PointOnObject", 32, 2, -2))
sketch2.addConstraint(Sketcher.Constraint("PointOnObject", 35, 2, -2))
sketch2.addConstraint(Sketcher.Constraint("Parallel", 0, 2))
sketch2.addConstraint(Sketcher.Constraint("Parallel", 3, 5))
sketch2.addConstraint(Sketcher.Constraint("Parallel", 2, 6))
sketch2.addConstraint(Sketcher.Constraint("Parallel", 6, 8))
sketch2.addConstraint(Sketcher.Constraint("Parallel", 9, 11))
sketch2.addConstraint(Sketcher.Constraint("Parallel", 8, 12))
sketch2.addConstraint(Sketcher.Constraint("Parallel", 12, 14))
sketch2.addConstraint(Sketcher.Constraint("Parallel", 15, 17))
sketch2.addConstraint(Sketcher.Constraint("Parallel", 14, 18))
sketch2.addConstraint(Sketcher.Constraint("Parallel", 18, 20))
sketch2.addConstraint(Sketcher.Constraint("Parallel", 21, 23))
sketch2.addConstraint(Sketcher.Constraint("Parallel", 20, 24))
sketch2.addConstraint(Sketcher.Constraint("Parallel", 24, 26))
sketch2.addConstraint(Sketcher.Constraint("Parallel", 27, 29))
sketch2.addConstraint(Sketcher.Constraint("Parallel", 26, 30))
sketch2.addConstraint(Sketcher.Constraint("Parallel", 30, 32))
sketch2.addConstraint(Sketcher.Constraint("Parallel", 33, 35))
sketch2.addConstraint(Sketcher.Constraint("Vertical", 1, 2, 6, 2))
sketch2.addConstraint(Sketcher.Constraint("Vertical", 7, 2, 12, 2))
sketch2.addConstraint(Sketcher.Constraint("Vertical", 13, 2, 18, 2))
sketch2.addConstraint(Sketcher.Constraint("Vertical", 19, 2, 24, 2))
sketch2.addConstraint(Sketcher.Constraint("Vertical", 25, 2, 30, 2))
sketch2.addConstraint(Sketcher.Constraint("Equal", 4, 7))
sketch2.addConstraint(Sketcher.Constraint("Equal", 10, 13))
sketch2.addConstraint(Sketcher.Constraint("Equal", 16, 19))
sketch2.addConstraint(Sketcher.Constraint("Equal", 22, 25))
sketch2.addConstraint(Sketcher.Constraint("Equal", 28, 31))
sketch2.addConstraint(Sketcher.Constraint("Angle", 0, Q("-150 deg")))
sketch2.addConstraint(Sketcher.Constraint("DistanceX", 0, 2, -1, 1, 8.0))
sketch2.addConstraint(Sketcher.Constraint("DistanceY", 6, 2, 0, 2, 8.0))
sketch2.addConstraint(Sketcher.Constraint("DistanceY", 12, 2, 6, 2, 8.0))
sketch2.addConstraint(Sketcher.Constraint("DistanceY", 18, 2, 12, 2, 32.0))
sketch2.addConstraint(Sketcher.Constraint("DistanceY", 24, 2, 18, 2, 8.0))
sketch2.addConstraint(Sketcher.Constraint("DistanceY", 30, 2, 24, 2, 8.0))
sketch2.addConstraint(Sketcher.Constraint("DistanceY", -1, 1, 5, 2, 39.75))
sketch2.addConstraint(Sketcher.Constraint("DistanceY", 1, 2, 1, 1, 2.886751))
pocket1 = body.newObject("PartDesign::Pocket", "Pocket")
pocket1.Profile = sketch2
pocket1.Type = "ThroughAll"

doc.recompute()
